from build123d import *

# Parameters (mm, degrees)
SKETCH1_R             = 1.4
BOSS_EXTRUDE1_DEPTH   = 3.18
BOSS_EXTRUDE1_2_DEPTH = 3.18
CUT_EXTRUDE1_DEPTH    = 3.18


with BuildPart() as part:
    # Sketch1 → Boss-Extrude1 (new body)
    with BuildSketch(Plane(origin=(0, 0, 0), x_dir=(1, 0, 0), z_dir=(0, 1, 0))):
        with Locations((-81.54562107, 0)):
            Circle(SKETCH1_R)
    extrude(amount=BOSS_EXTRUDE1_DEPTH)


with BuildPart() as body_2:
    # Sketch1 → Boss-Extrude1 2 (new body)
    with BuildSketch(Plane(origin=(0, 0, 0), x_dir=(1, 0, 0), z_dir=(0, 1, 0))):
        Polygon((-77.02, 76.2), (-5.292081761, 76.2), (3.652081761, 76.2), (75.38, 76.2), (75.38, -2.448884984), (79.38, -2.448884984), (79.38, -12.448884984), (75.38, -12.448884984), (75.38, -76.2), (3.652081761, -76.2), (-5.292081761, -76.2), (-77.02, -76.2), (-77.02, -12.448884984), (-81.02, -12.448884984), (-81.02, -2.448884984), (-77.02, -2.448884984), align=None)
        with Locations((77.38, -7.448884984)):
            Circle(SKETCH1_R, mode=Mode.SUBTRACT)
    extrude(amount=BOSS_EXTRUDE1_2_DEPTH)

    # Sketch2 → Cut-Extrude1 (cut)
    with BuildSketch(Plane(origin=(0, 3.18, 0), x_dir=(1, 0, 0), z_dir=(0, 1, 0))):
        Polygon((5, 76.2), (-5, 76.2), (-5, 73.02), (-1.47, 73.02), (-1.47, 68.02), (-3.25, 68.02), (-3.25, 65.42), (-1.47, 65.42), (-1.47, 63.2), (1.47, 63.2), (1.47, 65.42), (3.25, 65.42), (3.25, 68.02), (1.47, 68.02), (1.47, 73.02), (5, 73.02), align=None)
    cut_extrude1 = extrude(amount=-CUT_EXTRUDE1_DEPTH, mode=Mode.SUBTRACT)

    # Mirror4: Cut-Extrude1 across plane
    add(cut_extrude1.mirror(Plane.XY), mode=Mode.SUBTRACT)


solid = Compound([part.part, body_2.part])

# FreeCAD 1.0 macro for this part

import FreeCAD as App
import Part
import Sketcher


def add_polygon(sketch, points):
    """Adds a closed chain of lines whose ends are joined by coincident constraints."""
    first, n = sketch.GeometryCount, len(points)
    for a, b in zip(points, points[1:] + points[:1]):
        sketch.addGeometry(Part.LineSegment(App.Vector(*a, 0), App.Vector(*b, 0)), False)
    for i in range(n):
        sketch.addConstraint(Sketcher.Constraint("Coincident", first + i, 2, first + (i + 1) % n, 1))

doc = App.newDocument("Part")
body = doc.addObject("PartDesign::Body", "Body")

# Sketch on XZ plane
sketch1 = body.newObject("Sketcher::SketchObject", "Sketch")
sketch1.AttachmentSupport = (doc.getObject("XZ_Plane"), [""])
sketch1.MapMode = "FlatFace"
sketch1.addGeometry(Part.Circle(App.Vector(-81.5, 0, 0), App.Vector(0, 0, 1), 1.4), False)
sketch1.addConstraint(Sketcher.Constraint("PointOnObject", 0, 3, -1))
sketch1.addConstraint(Sketcher.Constraint("Diameter", 0, 2.8))
sketch1.addConstraint(Sketcher.Constraint("DistanceX", 0, 3, -1, 1, 81.545621))
pad1 = body.newObject("PartDesign::Pad", "Pad")
pad1.Profile = sketch1
pad1.Length = 3.18
pad1.Reversed = True
body2 = doc.addObject("PartDesign::Body", "Body001")

# Sketch on XZ plane
sketch2 = body2.newObject("Sketcher::SketchObject", "Sketch001")
sketch2.AttachmentSupport = (doc.getObject("XZ_Plane001"), [""])
sketch2.MapMode = "FlatFace"
add_polygon(sketch2, [(75.4, -76.2), (-77, -76.2), (-77, 2.4), (-81, 2.4), (-81, 12.4), (-77, 12.4), (-77, 76.2), (75.4, 76.2), (75.4, 12.4), (79.4, 12.4), (79.4, 2.4), (75.4, 2.4)])  # lines 0-11
sketch2.addGeometry(Part.Circle(App.Vector(77.4, 7.4, 0), App.Vector(0, 0, 1), 1.4), False)  # 12
sketch2.addConstraint(Sketcher.Constraint("Horizontal", 0))
sketch2.addConstraint(Sketcher.Constraint("Vertical", 1))
sketch2.addConstraint(Sketcher.Constraint("Horizontal", 2))
sketch2.addConstraint(Sketcher.Constraint("Vertical", 3))
sketch2.addConstraint(Sketcher.Constraint("Horizontal", 4))
sketch2.addConstraint(Sketcher.Constraint("Vertical", 5))
sketch2.addConstraint(Sketcher.Constraint("Horizontal", 6))
sketch2.addConstraint(Sketcher.Constraint("Vertical", 7))
sketch2.addConstraint(Sketcher.Constraint("Horizontal", 8))
sketch2.addConstraint(Sketcher.Constraint("Vertical", 9))
sketch2.addConstraint(Sketcher.Constraint("Horizontal", 10))
sketch2.addConstraint(Sketcher.Constraint("Vertical", 11))
sketch2.addConstraint(Sketcher.Constraint("Symmetric", 0, 2, 5, 2, -1))
sketch2.addConstraint(Sketcher.Constraint("Horizontal", 4, 2, 7, 2))
sketch2.addConstraint(Sketcher.Constraint("Horizontal", 2, 2, 9, 2))
sketch2.addConstraint(Sketcher.Constraint("Vertical", 7, 2, 10, 2))
sketch2.addConstraint(Sketcher.Constraint("Equal", 4, 8))
sketch2.addConstraint(Sketcher.Constraint("Diameter", 12, 2.8))
sketch2.addConstraint(Sketcher.Constraint("DistanceX", 2, 2, 2, 1, 4.0))
sketch2.addConstraint(Sketcher.Constraint("DistanceY", 3, 1, 3, 2, 10.0))
sketch2.addConstraint(Sketcher.Constraint("DistanceX", 0, 2, 0, 1, 152.4))
sketch2.addConstraint(Sketcher.Constraint("DistanceY", 1, 2, 12, 3, 5.0))
sketch2.addConstraint(Sketcher.Constraint("DistanceX", 6, 2, 12, 3, 2.0))
sketch2.addConstraint(Sketcher.Constraint("DistanceY", 0, 2, -1, 1, 76.2))
sketch2.addConstraint(Sketcher.Constraint("DistanceX", -1, 1, 12, 3, 77.38))
sketch2.addConstraint(Sketcher.Constraint("DistanceY", 1, 1, 1, 2, 78.648885))
pad2 = body2.newObject("PartDesign::Pad", "Pad001")
pad2.Profile = sketch2
pad2.Length = 3.18
pad2.Reversed = True

# Sketch on XZ plane
sketch3 = body2.newObject("Sketcher::SketchObject", "Sketch002")
sketch3.AttachmentSupport = (doc.getObject("XZ_Plane001"), [""])
sketch3.MapMode = "FlatFace"
sketch3.AttachmentOffset = App.Placement(App.Vector(0, 0, -3.18), App.Rotation())
add_polygon(sketch3, [(5, -76.2), (-5, -76.2), (-5, -73), (-1.5, -73), (-1.5, -68), (-3.2, -68), (-3.2, -65.4), (-1.5, -65.4), (-1.5, -63.2), (1.5, -63.2), (1.5, -65.4), (3.2, -65.4), (3.2, -68), (1.5, -68), (1.5, -73), (5, -73)])  # lines 0-15
sketch3.addConstraint(Sketcher.Constraint("Horizontal", 0))
sketch3.addConstraint(Sketcher.Constraint("Vertical", 1))
sketch3.addConstraint(Sketcher.Constraint("Horizontal", 2))
sketch3.addConstraint(Sketcher.Constraint("Vertical", 3))
sketch3.addConstraint(Sketcher.Constraint("Horizontal", 4))
sketch3.addConstraint(Sketcher.Constraint("Vertical", 5))
sketch3.addConstraint(Sketcher.Constraint("Horizontal", 6))
sketch3.addConstraint(Sketcher.Constraint("Vertical", 7))
sketch3.addConstraint(Sketcher.Constraint("Horizontal", 8))
sketch3.addConstraint(Sketcher.Constraint("Vertical", 9))
sketch3.addConstraint(Sketcher.Constraint("Horizontal", 10))
sketch3.addConstraint(Sketcher.Constraint("Vertical", 11))
sketch3.addConstraint(Sketcher.Constraint("Horizontal", 12))
sketch3.addConstraint(Sketcher.Constraint("Vertical", 13))
sketch3.addConstraint(Sketcher.Constraint("Horizontal", 14))
sketch3.addConstraint(Sketcher.Constraint("Vertical", 15))
sketch3.addConstraint(Sketcher.Constraint("Symmetric", 6, 2, 9, 2, -2))
sketch3.addConstraint(Sketcher.Constraint("Symmetric", 4, 2, 11, 2, -2))
sketch3.addConstraint(Sketcher.Constraint("Symmetric", 2, 2, 13, 2, -2))
sketch3.addConstraint(Sketcher.Constraint("Vertical", 3, 2, 6, 2))
sketch3.addConstraint(Sketcher.Constraint("Equal", 2, 14))
sketch3.addConstraint(Sketcher.Constraint("DistanceX", 0, 2, 0, 1, 10.0))
sketch3.addConstraint(Sketcher.Constraint("DistanceY", 3, 1, 3, 2, 5.0))
sketch3.addConstraint(Sketcher.Constraint("DistanceY", 5, 1, 5, 2, 2.6))
sketch3.addConstraint(Sketcher.Constraint("DistanceX", 2, 1, 2, 2, 3.53))
sketch3.addConstraint(Sketcher.Constraint("DistanceX", 4, 2, 4, 1, 1.78))
sketch3.addConstraint(Sketcher.Constraint("DistanceY", 1, 1, 1, 2, 3.18))
sketch3.addConstraint(Sketcher.Constraint("DistanceY", 7, 1, 7, 2, 2.22))
sketch3.addConstraint(Sketcher.Constraint("DistanceY", 0, 2, -1, 1, 76.2))
pocket1 = body2.newObject("PartDesign::Pocket", "Pocket")
pocket1.Profile = sketch3
pocket1.Length = 3.18
pocket1.Reversed = True
doc.recompute()

mirrored = body2.newObject("PartDesign::Mirrored", "Mirrored")
mirrored.Originals = [pocket1]
mirrored.MirrorPlane = (doc.getObject("XY_Plane001"), [""])
body2.Tip = mirrored

doc.recompute()
